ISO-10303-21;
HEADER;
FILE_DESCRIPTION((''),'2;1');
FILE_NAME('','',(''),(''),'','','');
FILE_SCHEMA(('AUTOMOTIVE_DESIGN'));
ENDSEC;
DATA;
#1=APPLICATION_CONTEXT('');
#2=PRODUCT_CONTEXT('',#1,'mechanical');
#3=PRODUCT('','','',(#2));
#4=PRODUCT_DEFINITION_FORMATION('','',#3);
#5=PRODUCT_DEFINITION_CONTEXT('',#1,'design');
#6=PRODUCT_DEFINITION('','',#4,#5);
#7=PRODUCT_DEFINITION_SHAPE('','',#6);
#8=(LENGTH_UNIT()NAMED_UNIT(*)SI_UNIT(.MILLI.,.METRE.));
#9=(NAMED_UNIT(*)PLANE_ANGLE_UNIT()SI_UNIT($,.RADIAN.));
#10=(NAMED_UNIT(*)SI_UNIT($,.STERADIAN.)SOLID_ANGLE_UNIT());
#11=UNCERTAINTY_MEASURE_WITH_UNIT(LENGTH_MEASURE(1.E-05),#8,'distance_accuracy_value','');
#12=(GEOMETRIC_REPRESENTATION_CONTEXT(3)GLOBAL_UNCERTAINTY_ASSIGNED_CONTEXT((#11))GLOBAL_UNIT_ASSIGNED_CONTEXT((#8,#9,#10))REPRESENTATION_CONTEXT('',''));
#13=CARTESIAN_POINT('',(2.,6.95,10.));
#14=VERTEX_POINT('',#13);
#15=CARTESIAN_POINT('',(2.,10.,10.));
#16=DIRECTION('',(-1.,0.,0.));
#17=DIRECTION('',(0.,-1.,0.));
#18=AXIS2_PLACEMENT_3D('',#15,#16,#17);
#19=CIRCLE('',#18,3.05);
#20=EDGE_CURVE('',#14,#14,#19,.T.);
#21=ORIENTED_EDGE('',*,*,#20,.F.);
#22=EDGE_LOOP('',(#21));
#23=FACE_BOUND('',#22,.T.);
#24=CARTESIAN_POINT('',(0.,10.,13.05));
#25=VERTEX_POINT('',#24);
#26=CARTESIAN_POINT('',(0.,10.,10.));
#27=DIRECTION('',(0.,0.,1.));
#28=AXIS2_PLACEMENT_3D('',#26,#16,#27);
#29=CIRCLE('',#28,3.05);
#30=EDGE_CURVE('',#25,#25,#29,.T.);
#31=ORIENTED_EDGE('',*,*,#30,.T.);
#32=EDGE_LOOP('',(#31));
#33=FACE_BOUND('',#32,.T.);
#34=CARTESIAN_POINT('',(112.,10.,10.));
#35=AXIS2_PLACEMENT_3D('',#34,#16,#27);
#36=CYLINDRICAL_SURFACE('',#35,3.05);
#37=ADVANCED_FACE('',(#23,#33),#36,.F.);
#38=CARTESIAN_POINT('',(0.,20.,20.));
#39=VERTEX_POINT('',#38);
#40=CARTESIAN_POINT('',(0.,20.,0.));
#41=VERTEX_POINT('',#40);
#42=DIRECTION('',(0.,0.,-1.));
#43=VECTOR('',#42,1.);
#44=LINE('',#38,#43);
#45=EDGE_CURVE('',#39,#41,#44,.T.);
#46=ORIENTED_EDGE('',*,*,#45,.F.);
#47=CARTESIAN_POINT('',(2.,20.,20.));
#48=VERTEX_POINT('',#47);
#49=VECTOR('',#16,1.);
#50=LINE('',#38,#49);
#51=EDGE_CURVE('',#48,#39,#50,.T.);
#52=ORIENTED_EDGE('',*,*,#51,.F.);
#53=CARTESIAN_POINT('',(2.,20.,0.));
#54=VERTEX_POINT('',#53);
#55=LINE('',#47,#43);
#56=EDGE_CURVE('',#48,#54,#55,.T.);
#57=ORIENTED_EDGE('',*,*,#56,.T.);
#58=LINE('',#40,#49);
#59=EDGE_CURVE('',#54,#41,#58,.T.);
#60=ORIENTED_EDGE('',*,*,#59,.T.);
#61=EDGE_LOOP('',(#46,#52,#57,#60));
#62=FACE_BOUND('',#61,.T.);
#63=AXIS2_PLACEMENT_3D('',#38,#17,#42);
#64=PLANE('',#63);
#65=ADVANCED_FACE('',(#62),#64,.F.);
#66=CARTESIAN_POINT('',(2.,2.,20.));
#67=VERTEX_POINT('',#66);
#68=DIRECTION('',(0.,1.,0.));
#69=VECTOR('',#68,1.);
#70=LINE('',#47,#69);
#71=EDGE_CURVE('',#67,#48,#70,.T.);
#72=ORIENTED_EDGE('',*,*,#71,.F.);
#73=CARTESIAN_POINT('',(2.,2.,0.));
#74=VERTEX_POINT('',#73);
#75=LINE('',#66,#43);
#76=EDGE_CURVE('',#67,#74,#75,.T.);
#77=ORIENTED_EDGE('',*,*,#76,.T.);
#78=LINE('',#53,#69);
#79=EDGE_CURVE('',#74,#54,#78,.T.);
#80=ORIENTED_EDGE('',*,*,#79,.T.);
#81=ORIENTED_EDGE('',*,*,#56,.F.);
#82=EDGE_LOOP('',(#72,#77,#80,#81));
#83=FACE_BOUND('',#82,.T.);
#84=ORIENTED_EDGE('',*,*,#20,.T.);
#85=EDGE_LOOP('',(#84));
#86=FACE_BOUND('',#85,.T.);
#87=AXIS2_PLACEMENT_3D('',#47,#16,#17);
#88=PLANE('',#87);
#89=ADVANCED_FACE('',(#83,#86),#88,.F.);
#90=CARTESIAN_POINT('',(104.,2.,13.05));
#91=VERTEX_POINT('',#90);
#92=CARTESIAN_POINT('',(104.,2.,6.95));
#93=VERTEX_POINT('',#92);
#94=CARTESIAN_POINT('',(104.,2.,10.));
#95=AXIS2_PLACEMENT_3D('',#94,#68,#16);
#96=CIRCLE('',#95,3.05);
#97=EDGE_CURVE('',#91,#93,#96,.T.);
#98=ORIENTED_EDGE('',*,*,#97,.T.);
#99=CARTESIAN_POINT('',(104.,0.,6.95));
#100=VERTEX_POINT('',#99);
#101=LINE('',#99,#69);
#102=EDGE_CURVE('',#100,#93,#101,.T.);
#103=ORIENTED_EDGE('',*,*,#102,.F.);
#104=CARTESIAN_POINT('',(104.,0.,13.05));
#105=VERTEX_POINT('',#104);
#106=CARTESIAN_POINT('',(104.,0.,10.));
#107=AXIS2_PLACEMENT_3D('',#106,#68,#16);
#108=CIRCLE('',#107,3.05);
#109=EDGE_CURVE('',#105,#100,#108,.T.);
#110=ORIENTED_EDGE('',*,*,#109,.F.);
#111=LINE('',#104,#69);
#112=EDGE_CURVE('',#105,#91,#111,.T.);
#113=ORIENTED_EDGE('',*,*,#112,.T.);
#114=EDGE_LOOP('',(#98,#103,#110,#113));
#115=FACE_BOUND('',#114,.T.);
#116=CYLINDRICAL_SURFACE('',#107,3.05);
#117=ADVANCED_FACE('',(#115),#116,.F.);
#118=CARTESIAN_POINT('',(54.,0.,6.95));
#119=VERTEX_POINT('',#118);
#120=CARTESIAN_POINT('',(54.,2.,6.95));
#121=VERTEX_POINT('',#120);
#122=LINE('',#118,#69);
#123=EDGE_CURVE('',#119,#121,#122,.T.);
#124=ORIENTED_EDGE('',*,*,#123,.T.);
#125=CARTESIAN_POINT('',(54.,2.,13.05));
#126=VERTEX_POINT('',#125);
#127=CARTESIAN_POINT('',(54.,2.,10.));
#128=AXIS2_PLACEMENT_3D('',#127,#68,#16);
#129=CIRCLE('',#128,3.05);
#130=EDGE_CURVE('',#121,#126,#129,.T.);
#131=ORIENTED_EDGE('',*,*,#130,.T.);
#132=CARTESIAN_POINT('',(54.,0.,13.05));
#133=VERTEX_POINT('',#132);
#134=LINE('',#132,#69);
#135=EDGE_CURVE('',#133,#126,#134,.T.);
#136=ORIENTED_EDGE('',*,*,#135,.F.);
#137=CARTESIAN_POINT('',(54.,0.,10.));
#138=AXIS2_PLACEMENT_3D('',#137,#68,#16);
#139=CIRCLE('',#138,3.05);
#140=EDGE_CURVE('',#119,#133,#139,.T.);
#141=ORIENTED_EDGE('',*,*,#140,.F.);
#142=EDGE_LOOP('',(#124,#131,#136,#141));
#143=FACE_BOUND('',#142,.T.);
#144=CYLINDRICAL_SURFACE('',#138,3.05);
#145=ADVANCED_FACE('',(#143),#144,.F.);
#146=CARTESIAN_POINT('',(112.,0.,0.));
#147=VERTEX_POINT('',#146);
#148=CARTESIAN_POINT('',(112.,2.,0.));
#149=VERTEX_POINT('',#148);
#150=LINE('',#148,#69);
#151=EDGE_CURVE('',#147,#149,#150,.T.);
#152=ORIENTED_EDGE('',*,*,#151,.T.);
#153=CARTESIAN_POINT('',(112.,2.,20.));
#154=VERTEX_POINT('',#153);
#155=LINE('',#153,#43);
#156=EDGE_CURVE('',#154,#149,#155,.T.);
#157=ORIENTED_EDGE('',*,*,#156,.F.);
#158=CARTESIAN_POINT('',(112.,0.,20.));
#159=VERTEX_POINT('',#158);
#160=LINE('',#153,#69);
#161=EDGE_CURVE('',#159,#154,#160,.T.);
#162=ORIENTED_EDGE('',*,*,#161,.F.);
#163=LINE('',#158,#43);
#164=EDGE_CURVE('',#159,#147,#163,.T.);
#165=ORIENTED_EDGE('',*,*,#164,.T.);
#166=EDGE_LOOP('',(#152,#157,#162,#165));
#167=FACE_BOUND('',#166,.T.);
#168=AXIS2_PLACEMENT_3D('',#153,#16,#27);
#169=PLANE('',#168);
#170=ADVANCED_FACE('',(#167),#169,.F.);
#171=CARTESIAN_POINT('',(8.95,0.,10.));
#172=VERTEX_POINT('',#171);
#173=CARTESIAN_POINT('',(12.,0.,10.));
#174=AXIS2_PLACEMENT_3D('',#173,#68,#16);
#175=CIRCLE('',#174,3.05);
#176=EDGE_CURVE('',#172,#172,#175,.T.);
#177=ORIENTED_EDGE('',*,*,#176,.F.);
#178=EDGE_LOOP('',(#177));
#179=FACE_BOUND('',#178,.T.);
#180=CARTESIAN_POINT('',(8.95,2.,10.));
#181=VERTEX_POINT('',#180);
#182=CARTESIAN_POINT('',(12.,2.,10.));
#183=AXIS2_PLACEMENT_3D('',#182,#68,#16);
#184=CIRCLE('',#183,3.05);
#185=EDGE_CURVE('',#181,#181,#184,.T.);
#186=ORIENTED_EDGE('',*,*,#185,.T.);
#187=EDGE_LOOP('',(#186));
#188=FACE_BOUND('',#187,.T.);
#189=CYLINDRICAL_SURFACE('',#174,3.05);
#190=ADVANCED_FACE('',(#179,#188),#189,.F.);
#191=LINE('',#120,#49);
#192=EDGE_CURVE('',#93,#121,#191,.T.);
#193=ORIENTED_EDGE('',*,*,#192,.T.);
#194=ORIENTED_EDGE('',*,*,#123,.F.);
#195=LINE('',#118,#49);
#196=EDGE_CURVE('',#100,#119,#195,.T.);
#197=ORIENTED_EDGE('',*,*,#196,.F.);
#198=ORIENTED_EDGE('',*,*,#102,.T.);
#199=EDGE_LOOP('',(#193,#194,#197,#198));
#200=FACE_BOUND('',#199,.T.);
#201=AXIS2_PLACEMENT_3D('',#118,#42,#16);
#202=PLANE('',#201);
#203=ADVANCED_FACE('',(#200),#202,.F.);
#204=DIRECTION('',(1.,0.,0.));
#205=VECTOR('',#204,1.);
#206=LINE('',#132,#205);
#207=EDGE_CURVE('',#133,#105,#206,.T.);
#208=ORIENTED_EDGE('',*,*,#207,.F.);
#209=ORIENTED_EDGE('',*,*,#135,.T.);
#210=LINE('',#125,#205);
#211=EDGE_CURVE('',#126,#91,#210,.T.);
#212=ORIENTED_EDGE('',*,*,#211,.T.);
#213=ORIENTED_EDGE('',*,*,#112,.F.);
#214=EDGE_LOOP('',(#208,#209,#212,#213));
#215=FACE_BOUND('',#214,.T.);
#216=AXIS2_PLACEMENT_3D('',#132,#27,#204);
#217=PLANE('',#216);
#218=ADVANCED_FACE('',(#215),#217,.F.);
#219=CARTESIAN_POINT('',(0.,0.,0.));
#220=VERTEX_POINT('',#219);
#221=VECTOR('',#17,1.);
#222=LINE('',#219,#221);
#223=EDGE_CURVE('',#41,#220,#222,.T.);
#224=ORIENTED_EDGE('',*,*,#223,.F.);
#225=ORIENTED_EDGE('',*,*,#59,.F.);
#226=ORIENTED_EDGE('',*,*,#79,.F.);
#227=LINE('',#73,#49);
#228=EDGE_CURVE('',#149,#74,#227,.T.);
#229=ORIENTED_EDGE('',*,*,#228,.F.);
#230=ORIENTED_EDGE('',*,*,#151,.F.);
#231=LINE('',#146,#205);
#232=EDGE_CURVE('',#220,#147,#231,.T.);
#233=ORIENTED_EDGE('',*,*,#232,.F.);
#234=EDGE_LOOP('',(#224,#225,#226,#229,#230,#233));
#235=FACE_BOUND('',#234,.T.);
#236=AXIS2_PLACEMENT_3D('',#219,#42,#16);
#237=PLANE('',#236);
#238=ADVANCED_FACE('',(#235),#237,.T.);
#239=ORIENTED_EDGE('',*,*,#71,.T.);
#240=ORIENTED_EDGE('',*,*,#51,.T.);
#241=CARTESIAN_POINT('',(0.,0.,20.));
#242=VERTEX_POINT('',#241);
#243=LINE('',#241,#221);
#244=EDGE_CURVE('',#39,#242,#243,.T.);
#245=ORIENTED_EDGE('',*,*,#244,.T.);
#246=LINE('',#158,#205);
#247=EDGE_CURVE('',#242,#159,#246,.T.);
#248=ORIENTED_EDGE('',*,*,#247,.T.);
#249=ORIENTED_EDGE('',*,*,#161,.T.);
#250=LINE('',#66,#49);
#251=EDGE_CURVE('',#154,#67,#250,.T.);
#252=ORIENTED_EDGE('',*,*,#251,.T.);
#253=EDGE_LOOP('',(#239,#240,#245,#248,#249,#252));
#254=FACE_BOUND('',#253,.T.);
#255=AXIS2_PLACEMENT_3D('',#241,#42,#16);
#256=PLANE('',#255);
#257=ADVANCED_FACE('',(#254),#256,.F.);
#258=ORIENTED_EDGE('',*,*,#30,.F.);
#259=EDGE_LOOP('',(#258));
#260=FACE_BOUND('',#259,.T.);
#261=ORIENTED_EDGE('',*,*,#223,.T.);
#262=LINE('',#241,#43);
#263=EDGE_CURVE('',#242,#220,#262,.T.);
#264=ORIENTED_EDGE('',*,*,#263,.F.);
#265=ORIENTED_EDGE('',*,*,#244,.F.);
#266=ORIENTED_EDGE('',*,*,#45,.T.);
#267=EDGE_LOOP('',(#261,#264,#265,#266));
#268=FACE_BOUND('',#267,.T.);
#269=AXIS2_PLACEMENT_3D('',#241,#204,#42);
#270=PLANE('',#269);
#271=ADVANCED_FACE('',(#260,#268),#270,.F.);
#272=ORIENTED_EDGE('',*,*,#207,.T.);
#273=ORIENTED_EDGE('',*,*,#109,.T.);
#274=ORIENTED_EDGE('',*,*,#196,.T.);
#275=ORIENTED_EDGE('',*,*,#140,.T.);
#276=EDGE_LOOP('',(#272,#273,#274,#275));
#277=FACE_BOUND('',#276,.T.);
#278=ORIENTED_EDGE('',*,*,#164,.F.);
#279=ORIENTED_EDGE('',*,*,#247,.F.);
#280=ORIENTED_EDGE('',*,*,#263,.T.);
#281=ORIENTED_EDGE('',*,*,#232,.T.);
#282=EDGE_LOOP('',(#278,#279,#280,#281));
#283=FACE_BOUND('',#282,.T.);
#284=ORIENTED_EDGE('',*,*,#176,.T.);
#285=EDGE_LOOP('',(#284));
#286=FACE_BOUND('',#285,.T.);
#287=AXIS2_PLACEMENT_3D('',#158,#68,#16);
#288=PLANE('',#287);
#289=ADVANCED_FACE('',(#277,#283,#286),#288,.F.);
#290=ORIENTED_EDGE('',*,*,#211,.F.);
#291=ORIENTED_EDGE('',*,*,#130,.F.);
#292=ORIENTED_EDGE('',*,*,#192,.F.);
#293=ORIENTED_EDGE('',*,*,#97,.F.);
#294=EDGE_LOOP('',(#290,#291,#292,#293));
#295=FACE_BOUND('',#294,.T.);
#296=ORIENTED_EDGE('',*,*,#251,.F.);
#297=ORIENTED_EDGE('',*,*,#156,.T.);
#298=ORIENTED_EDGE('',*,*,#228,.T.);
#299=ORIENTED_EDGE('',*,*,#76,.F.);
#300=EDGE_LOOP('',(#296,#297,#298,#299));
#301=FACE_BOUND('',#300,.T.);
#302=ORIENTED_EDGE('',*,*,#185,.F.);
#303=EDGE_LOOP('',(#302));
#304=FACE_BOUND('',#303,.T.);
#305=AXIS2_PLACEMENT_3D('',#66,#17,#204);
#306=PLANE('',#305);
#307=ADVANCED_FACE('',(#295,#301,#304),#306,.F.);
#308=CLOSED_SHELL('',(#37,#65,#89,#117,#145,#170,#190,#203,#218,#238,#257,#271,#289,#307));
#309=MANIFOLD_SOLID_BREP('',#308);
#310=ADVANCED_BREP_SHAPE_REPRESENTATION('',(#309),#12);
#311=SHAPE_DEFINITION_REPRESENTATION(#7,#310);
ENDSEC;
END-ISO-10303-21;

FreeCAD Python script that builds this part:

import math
import FreeCAD as App
import Part
import Sketcher

V = App.Vector
Q = App.Units.Quantity

doc = App.newDocument("Part")
params = doc.addObject("Spreadsheet::Sheet", "Params")
for row, (alias, value) in enumerate([
    ("sketch1_width", "112 mm"),
    ("sketch1_width2", "110 mm"),
    ("sketch1_height", "20 mm"),
    ("pad1_length", "20 mm"),
    ("sketch2_diameter", "6.1 mm"),
    ("sketch3_diameter", "6.1 mm"),
    ("sketch3_width", "50 mm"),
], start=1):
    params.set(f"A{row}", alias)
    params.set(f"B{row}", "=" + value)
    params.setAlias(f"B{row}", alias)

body = doc.addObject("PartDesign::Body", "Body")

# Sketch on XY plane
sketch1 = doc.addObject("Sketcher::SketchObject", "Sketch")
body.addObject(sketch1)
sketch1.AttachmentSupport = (doc.XY_Plane, [""])
sketch1.MapMode = "FlatFace"
sketch1.addGeometry([
    Part.LineSegment(V(0, 20, 0), V(0, 0, 0)),  # 0
    Part.LineSegment(V(0, 0, 0), V(112, 0, 0)),  # 1
    Part.LineSegment(V(112, 0, 0), V(112, 2, 0)),  # 2
    Part.LineSegment(V(112, 2, 0), V(2, 2, 0)),  # 3
    Part.LineSegment(V(2, 2, 0), V(2, 20, 0)),  # 4
    Part.LineSegment(V(2, 20, 0), V(0, 20, 0)),  # 5
], False)
sketch1.addConstraint([
    Sketcher.Constraint("Coincident", 0, 2, 1, 1),
    Sketcher.Constraint("Coincident", 1, 2, 2, 1),
    Sketcher.Constraint("Coincident", 2, 2, 3, 1),
    Sketcher.Constraint("Coincident", 3, 2, 4, 1),
    Sketcher.Constraint("Coincident", 4, 2, 5, 1),
    Sketcher.Constraint("Coincident", 5, 2, 0, 1),
    Sketcher.Constraint("Vertical", 0),
    Sketcher.Constraint("Horizontal", 1),
    Sketcher.Constraint("Vertical", 2),
    Sketcher.Constraint("Horizontal", 3),
    Sketcher.Constraint("Vertical", 4),
    Sketcher.Constraint("Horizontal", 5),
    Sketcher.Constraint("Coincident", 0, 2, -1, 1),
    Sketcher.Constraint("Equal", 5, 2),
    Sketcher.Constraint("DistanceX", 1, 1, 1, 2, Q("112 mm")),
    Sketcher.Constraint("DistanceX", 3, 2, 3, 1, Q("110 mm")),
    Sketcher.Constraint("DistanceY", 0, 2, 0, 1, Q("20 mm")),
])
sketch1.setExpression("Constraints[14]", "Params.sketch1_width")
sketch1.setExpression("Constraints[15]", "Params.sketch1_width2")
sketch1.setExpression("Constraints[16]", "Params.sketch1_height")
pad1 = doc.addObject("PartDesign::Pad", "Pad")
body.addObject(pad1)
pad1.Profile = sketch1
pad1.setExpression("Length", "Params.pad1_length")

# Sketch on YZ plane
sketch2 = doc.addObject("Sketcher::SketchObject", "Sketch001")
body.addObject(sketch2)
sketch2.AttachmentSupport = (doc.YZ_Plane, [""])
sketch2.MapMode = "FlatFace"
sketch2.addGeometry(Part.Circle(V(10, 10, 0), V(0, 0, 1), 3), False)
sketch2.addConstraint([
    Sketcher.Constraint("Diameter", 0, Q("6.1 mm")),
    Sketcher.Constraint("DistanceX", -1, 1, 0, 3, Q("10 mm")),
    Sketcher.Constraint("DistanceY", -1, 1, 0, 3, Q("10 mm")),
])
sketch2.setExpression("Constraints[0]", "Params.sketch2_diameter")
pocket1 = doc.addObject("PartDesign::Pocket", "Pocket")
body.addObject(pocket1)
pocket1.Profile = sketch2
pocket1.Type = "ThroughAll"
pocket1.Reversed = True

# Sketch on XZ plane
sketch3 = doc.addObject("Sketcher::SketchObject", "Sketch002")
body.addObject(sketch3)
sketch3.AttachmentSupport = (doc.XZ_Plane, [""])
sketch3.MapMode = "FlatFace"
sketch3.AttachmentOffset = App.Placement(V(0, 0, -2), App.Rotation())
sketch3.addGeometry([
    Part.Circle(V(12, 10, 0), V(0, 0, 1), 3),  # 0
    Part.LineSegment(V(54, 13.1, 0), V(104, 13.1, 0)),  # 1
    Part.ArcOfCircle(Part.Circle(V(104, 10, 0), V(0, 0, 1), 3), math.radians(-90), math.radians(90)),  # 2
    Part.LineSegment(V(104, 7, 0), V(54, 7, 0)),  # 3
    Part.ArcOfCircle(Part.Circle(V(54, 10, 0), V(0, 0, 1), 3), math.radians(90), math.radians(270)),  # 4
], False)
sketch3.addConstraint([
    Sketcher.Constraint("Tangent", 1, 2, 2, 2),
    Sketcher.Constraint("Tangent", 2, 1, 3, 1),
    Sketcher.Constraint("Tangent", 3, 2, 4, 2),
    Sketcher.Constraint("Tangent", 4, 1, 1, 1),
    Sketcher.Constraint("Horizontal", 1),
    Sketcher.Constraint("Horizontal", 3),
    Sketcher.Constraint("Equal", 0, 2),
    Sketcher.Constraint("Horizontal", 0, 3, 2, 3),
    Sketcher.Constraint("Diameter", 0, Q("6.1 mm")),
    Sketcher.Constraint("DistanceX", 1, 1, 1, 2, Q("50 mm")),
    Sketcher.Constraint("DistanceX", -1, 1, 0, 3, Q("12 mm")),
    Sketcher.Constraint("DistanceY", -1, 1, 0, 3, Q("10 mm")),
    Sketcher.Constraint("DistanceX", -1, 1, 2, 3, Q("104 mm")),
])
sketch3.setExpression("Constraints[8]", "Params.sketch3_diameter")
sketch3.setExpression("Constraints[9]", "Params.sketch3_width")
pocket2 = doc.addObject("PartDesign::Pocket", "Pocket001")
body.addObject(pocket2)
pocket2.Profile = sketch3
pocket2.Type = "ThroughAll"
pocket2.Reversed = True

doc.recompute()
